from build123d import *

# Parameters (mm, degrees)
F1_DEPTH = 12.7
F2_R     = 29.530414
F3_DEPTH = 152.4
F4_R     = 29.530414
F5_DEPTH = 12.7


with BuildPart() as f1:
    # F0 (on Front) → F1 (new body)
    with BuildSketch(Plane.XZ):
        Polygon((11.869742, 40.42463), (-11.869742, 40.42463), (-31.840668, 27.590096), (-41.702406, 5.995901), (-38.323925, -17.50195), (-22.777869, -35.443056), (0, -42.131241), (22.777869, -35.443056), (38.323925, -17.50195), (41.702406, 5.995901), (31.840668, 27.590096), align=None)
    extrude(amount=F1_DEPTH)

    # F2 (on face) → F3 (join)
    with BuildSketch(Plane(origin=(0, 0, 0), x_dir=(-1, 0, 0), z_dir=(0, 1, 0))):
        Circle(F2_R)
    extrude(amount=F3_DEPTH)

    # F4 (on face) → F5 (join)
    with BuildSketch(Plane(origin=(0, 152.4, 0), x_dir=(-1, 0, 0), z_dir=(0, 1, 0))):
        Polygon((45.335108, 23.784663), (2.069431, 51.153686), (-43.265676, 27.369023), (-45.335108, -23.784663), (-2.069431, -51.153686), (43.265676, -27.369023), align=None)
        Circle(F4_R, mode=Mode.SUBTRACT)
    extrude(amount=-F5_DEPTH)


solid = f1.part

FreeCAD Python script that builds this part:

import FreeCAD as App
import Part
import Sketcher
Q = App.Units.Quantity

doc = App.newDocument("Part")
params = doc.addObject("Spreadsheet::Sheet", "Params")
for row, (alias, value) in enumerate([
    ("pad1_length", "0.5 in"),
    ("pad2_length", "6 in"),
    ("pad3_length", "0.5 in"),
], start=1):
    params.set(f"A{row}", alias)
    params.set(f"B{row}", "=" + value)
    params.setAlias(f"B{row}", alias)

body = doc.addObject("PartDesign::Body", "Body")

# Sketch on XZ plane
sketch1 = body.newObject("Sketcher::SketchObject", "Sketch")
sketch1.AttachmentSupport = (doc.getObject("XZ_Plane"), [""])
sketch1.MapMode = "FlatFace"
sketch1.addGeometry(Part.LineSegment(App.Vector(11.869742, 40.42463, 0), App.Vector(-11.869742, 40.42463, 0)), False)
sketch1.addGeometry(Part.LineSegment(App.Vector(-11.869742, 40.42463, 0), App.Vector(-31.840668, 27.590096, 0)), False)
sketch1.addGeometry(Part.LineSegment(App.Vector(-31.840668, 27.590096, 0), App.Vector(-41.702406, 5.995901, 0)), False)
sketch1.addGeometry(Part.LineSegment(App.Vector(-41.702406, 5.995901, 0), App.Vector(-38.323925, -17.50195, 0)), False)
sketch1.addGeometry(Part.LineSegment(App.Vector(-38.323925, -17.50195, 0), App.Vector(-22.777869, -35.443056, 0)), False)
sketch1.addGeometry(Part.LineSegment(App.Vector(-22.777869, -35.443056, 0), App.Vector(0, -42.131241, 0)), False)
sketch1.addGeometry(Part.LineSegment(App.Vector(0, -42.131241, 0), App.Vector(22.777869, -35.443056, 0)), False)
sketch1.addGeometry(Part.LineSegment(App.Vector(22.777869, -35.443056, 0), App.Vector(38.323925, -17.50195, 0)), False)
sketch1.addGeometry(Part.LineSegment(App.Vector(38.323925, -17.50195, 0), App.Vector(41.702406, 5.995901, 0)), False)
sketch1.addGeometry(Part.LineSegment(App.Vector(41.702406, 5.995901, 0), App.Vector(31.840668, 27.590096, 0)), False)
sketch1.addGeometry(Part.LineSegment(App.Vector(31.840668, 27.590096, 0), App.Vector(11.869742, 40.42463, 0)), False)
sketch1.addConstraint(Sketcher.Constraint("Coincident", 0, 2, 1, 1))
sketch1.addConstraint(Sketcher.Constraint("Coincident", 1, 2, 2, 1))
sketch1.addConstraint(Sketcher.Constraint("Coincident", 2, 2, 3, 1))
sketch1.addConstraint(Sketcher.Constraint("Coincident", 3, 2, 4, 1))
sketch1.addConstraint(Sketcher.Constraint("Coincident", 4, 2, 5, 1))
sketch1.addConstraint(Sketcher.Constraint("Coincident", 5, 2, 6, 1))
sketch1.addConstraint(Sketcher.Constraint("Coincident", 6, 2, 7, 1))
sketch1.addConstraint(Sketcher.Constraint("Coincident", 7, 2, 8, 1))
sketch1.addConstraint(Sketcher.Constraint("Coincident", 8, 2, 9, 1))
sketch1.addConstraint(Sketcher.Constraint("Coincident", 9, 2, 10, 1))
sketch1.addConstraint(Sketcher.Constraint("Coincident", 10, 2, 0, 1))
sketch1.addConstraint(Sketcher.Constraint("Horizontal", 0))
sketch1.addConstraint(Sketcher.Constraint("Symmetric", 4, 2, 6, 2, -2))
sketch1.addConstraint(Sketcher.Constraint("Symmetric", 3, 2, 7, 2, -2))
sketch1.addConstraint(Sketcher.Constraint("Symmetric", 2, 2, 8, 2, -2))
sketch1.addConstraint(Sketcher.Constraint("Symmetric", 1, 2, 9, 2, -2))
sketch1.addConstraint(Sketcher.Constraint("PointOnObject", 5, 2, -2))
sketch1.addConstraint(Sketcher.Constraint("Equal", 1, 2))
sketch1.addConstraint(Sketcher.Constraint("Equal", 2, 3))
sketch1.addConstraint(Sketcher.Constraint("Equal", 3, 4))
sketch1.addConstraint(Sketcher.Constraint("Equal", 4, 5))
sketch1.addConstraint(Sketcher.Constraint("Equal", 9, 10))
sketch1.addConstraint(Sketcher.Constraint("DistanceY", -1, 1, 2, 2, Q("5.995901 mm")))
sketch1.addConstraint(Sketcher.Constraint("DistanceX", 1, 2, 4, 2, Q("9.062799 mm")))
sketch1.addConstraint(Sketcher.Constraint("DistanceX", 0, 2, 0, 1, Q("23.739484 mm")))
sketch1.addConstraint(Sketcher.Constraint("DistanceY", -1, 1, 0, 2, Q("40.42463 mm")))
sketch1.addConstraint(Sketcher.Constraint("DistanceX", 1, 2, -1, 1, Q("31.840668 mm")))
sketch1.addConstraint(Sketcher.Constraint("DistanceY", 3, 2, -1, 1, Q("17.50195 mm")))
sketch1.addConstraint(Sketcher.Constraint("DistanceY", 5, 2, -1, 1, Q("42.131241 mm")))
pad1 = body.newObject("PartDesign::Pad", "Pad")
pad1.Profile = sketch1
pad1.setExpression("Length", "Params.pad1_length")

# Sketch on XZ plane
sketch2 = body.newObject("Sketcher::SketchObject", "Sketch001")
sketch2.AttachmentSupport = (doc.getObject("XZ_Plane"), [""])
sketch2.MapMode = "FlatFace"
sketch2.addGeometry(Part.Circle(App.Vector(0, 0, 0), App.Vector(0, 0, 1), 29.530414), False)
sketch2.addConstraint(Sketcher.Constraint("Coincident", 0, 3, -1, 1))
sketch2.addConstraint(Sketcher.Constraint("Diameter", 0, Q("59.060828 mm")))
pad2 = body.newObject("PartDesign::Pad", "Pad001")
pad2.Profile = sketch2
pad2.setExpression("Length", "Params.pad2_length")
pad2.Reversed = True

# Sketch on XZ plane
sketch3 = body.newObject("Sketcher::SketchObject", "Sketch002")
sketch3.AttachmentSupport = (doc.getObject("XZ_Plane"), [""])
sketch3.MapMode = "FlatFace"
sketch3.AttachmentOffset = App.Placement(App.Vector(0, 0, -6 * 25.4), App.Rotation())
sketch3.addGeometry(Part.LineSegment(App.Vector(-45.335108, 23.784663, 0), App.Vector(-2.069431, 51.153686, 0)), False)
sketch3.addGeometry(Part.LineSegment(App.Vector(-2.069431, 51.153686, 0), App.Vector(43.265676, 27.369023, 0)), False)
sketch3.addGeometry(Part.LineSegment(App.Vector(43.265676, 27.369023, 0), App.Vector(45.335108, -23.784663, 0)), False)
sketch3.addGeometry(Part.LineSegment(App.Vector(45.335108, -23.784663, 0), App.Vector(2.069431, -51.153686, 0)), False)
sketch3.addGeometry(Part.LineSegment(App.Vector(2.069431, -51.153686, 0), App.Vector(-43.265676, -27.369023, 0)), False)
sketch3.addGeometry(Part.LineSegment(App.Vector(-43.265676, -27.369023, 0), App.Vector(-45.335108, 23.784663, 0)), False)
sketch3.addGeometry(Part.Circle(App.Vector(0, 0, 0), App.Vector(0, 0, 1), 29.530414), False)
sketch3.addConstraint(Sketcher.Constraint("Coincident", 0, 2, 1, 1))
sketch3.addConstraint(Sketcher.Constraint("Coincident", 1, 2, 2, 1))
sketch3.addConstraint(Sketcher.Constraint("Coincident", 2, 2, 3, 1))
sketch3.addConstraint(Sketcher.Constraint("Coincident", 3, 2, 4, 1))
sketch3.addConstraint(Sketcher.Constraint("Coincident", 4, 2, 5, 1))
sketch3.addConstraint(Sketcher.Constraint("Coincident", 5, 2, 0, 1))
sketch3.addConstraint(Sketcher.Constraint("Coincident", 6, 3, -1, 1))
sketch3.addConstraint(Sketcher.Constraint("Symmetric", 0, 2, 3, 2, -1, 1))
sketch3.addConstraint(Sketcher.Constraint("Symmetric", 1, 2, 4, 2, -1, 1))
sketch3.addConstraint(Sketcher.Constraint("Symmetric", 2, 2, 5, 2, -1, 1))
sketch3.addConstraint(Sketcher.Constraint("Equal", 0, 1))
sketch3.addConstraint(Sketcher.Constraint("Equal", 1, 2))
sketch3.addConstraint(Sketcher.Constraint("Diameter", 6, Q("59.060828 mm")))
sketch3.addConstraint(Sketcher.Constraint("Distance", 0, Q("51.195529 mm")))
sketch3.addConstraint(Sketcher.Constraint("DistanceX", 0, 2, -1, 1, Q("2.069431 mm")))
sketch3.addConstraint(Sketcher.Constraint("DistanceX", 1, 2, 2, 2, Q("2.069432 mm")))
sketch3.addConstraint(Sketcher.Constraint("DistanceX", 0, 2, 2, 2, Q("47.404539 mm")))
pad3 = body.newObject("PartDesign::Pad", "Pad002")
pad3.Profile = sketch3
pad3.setExpression("Length", "Params.pad3_length")

doc.recompute()
